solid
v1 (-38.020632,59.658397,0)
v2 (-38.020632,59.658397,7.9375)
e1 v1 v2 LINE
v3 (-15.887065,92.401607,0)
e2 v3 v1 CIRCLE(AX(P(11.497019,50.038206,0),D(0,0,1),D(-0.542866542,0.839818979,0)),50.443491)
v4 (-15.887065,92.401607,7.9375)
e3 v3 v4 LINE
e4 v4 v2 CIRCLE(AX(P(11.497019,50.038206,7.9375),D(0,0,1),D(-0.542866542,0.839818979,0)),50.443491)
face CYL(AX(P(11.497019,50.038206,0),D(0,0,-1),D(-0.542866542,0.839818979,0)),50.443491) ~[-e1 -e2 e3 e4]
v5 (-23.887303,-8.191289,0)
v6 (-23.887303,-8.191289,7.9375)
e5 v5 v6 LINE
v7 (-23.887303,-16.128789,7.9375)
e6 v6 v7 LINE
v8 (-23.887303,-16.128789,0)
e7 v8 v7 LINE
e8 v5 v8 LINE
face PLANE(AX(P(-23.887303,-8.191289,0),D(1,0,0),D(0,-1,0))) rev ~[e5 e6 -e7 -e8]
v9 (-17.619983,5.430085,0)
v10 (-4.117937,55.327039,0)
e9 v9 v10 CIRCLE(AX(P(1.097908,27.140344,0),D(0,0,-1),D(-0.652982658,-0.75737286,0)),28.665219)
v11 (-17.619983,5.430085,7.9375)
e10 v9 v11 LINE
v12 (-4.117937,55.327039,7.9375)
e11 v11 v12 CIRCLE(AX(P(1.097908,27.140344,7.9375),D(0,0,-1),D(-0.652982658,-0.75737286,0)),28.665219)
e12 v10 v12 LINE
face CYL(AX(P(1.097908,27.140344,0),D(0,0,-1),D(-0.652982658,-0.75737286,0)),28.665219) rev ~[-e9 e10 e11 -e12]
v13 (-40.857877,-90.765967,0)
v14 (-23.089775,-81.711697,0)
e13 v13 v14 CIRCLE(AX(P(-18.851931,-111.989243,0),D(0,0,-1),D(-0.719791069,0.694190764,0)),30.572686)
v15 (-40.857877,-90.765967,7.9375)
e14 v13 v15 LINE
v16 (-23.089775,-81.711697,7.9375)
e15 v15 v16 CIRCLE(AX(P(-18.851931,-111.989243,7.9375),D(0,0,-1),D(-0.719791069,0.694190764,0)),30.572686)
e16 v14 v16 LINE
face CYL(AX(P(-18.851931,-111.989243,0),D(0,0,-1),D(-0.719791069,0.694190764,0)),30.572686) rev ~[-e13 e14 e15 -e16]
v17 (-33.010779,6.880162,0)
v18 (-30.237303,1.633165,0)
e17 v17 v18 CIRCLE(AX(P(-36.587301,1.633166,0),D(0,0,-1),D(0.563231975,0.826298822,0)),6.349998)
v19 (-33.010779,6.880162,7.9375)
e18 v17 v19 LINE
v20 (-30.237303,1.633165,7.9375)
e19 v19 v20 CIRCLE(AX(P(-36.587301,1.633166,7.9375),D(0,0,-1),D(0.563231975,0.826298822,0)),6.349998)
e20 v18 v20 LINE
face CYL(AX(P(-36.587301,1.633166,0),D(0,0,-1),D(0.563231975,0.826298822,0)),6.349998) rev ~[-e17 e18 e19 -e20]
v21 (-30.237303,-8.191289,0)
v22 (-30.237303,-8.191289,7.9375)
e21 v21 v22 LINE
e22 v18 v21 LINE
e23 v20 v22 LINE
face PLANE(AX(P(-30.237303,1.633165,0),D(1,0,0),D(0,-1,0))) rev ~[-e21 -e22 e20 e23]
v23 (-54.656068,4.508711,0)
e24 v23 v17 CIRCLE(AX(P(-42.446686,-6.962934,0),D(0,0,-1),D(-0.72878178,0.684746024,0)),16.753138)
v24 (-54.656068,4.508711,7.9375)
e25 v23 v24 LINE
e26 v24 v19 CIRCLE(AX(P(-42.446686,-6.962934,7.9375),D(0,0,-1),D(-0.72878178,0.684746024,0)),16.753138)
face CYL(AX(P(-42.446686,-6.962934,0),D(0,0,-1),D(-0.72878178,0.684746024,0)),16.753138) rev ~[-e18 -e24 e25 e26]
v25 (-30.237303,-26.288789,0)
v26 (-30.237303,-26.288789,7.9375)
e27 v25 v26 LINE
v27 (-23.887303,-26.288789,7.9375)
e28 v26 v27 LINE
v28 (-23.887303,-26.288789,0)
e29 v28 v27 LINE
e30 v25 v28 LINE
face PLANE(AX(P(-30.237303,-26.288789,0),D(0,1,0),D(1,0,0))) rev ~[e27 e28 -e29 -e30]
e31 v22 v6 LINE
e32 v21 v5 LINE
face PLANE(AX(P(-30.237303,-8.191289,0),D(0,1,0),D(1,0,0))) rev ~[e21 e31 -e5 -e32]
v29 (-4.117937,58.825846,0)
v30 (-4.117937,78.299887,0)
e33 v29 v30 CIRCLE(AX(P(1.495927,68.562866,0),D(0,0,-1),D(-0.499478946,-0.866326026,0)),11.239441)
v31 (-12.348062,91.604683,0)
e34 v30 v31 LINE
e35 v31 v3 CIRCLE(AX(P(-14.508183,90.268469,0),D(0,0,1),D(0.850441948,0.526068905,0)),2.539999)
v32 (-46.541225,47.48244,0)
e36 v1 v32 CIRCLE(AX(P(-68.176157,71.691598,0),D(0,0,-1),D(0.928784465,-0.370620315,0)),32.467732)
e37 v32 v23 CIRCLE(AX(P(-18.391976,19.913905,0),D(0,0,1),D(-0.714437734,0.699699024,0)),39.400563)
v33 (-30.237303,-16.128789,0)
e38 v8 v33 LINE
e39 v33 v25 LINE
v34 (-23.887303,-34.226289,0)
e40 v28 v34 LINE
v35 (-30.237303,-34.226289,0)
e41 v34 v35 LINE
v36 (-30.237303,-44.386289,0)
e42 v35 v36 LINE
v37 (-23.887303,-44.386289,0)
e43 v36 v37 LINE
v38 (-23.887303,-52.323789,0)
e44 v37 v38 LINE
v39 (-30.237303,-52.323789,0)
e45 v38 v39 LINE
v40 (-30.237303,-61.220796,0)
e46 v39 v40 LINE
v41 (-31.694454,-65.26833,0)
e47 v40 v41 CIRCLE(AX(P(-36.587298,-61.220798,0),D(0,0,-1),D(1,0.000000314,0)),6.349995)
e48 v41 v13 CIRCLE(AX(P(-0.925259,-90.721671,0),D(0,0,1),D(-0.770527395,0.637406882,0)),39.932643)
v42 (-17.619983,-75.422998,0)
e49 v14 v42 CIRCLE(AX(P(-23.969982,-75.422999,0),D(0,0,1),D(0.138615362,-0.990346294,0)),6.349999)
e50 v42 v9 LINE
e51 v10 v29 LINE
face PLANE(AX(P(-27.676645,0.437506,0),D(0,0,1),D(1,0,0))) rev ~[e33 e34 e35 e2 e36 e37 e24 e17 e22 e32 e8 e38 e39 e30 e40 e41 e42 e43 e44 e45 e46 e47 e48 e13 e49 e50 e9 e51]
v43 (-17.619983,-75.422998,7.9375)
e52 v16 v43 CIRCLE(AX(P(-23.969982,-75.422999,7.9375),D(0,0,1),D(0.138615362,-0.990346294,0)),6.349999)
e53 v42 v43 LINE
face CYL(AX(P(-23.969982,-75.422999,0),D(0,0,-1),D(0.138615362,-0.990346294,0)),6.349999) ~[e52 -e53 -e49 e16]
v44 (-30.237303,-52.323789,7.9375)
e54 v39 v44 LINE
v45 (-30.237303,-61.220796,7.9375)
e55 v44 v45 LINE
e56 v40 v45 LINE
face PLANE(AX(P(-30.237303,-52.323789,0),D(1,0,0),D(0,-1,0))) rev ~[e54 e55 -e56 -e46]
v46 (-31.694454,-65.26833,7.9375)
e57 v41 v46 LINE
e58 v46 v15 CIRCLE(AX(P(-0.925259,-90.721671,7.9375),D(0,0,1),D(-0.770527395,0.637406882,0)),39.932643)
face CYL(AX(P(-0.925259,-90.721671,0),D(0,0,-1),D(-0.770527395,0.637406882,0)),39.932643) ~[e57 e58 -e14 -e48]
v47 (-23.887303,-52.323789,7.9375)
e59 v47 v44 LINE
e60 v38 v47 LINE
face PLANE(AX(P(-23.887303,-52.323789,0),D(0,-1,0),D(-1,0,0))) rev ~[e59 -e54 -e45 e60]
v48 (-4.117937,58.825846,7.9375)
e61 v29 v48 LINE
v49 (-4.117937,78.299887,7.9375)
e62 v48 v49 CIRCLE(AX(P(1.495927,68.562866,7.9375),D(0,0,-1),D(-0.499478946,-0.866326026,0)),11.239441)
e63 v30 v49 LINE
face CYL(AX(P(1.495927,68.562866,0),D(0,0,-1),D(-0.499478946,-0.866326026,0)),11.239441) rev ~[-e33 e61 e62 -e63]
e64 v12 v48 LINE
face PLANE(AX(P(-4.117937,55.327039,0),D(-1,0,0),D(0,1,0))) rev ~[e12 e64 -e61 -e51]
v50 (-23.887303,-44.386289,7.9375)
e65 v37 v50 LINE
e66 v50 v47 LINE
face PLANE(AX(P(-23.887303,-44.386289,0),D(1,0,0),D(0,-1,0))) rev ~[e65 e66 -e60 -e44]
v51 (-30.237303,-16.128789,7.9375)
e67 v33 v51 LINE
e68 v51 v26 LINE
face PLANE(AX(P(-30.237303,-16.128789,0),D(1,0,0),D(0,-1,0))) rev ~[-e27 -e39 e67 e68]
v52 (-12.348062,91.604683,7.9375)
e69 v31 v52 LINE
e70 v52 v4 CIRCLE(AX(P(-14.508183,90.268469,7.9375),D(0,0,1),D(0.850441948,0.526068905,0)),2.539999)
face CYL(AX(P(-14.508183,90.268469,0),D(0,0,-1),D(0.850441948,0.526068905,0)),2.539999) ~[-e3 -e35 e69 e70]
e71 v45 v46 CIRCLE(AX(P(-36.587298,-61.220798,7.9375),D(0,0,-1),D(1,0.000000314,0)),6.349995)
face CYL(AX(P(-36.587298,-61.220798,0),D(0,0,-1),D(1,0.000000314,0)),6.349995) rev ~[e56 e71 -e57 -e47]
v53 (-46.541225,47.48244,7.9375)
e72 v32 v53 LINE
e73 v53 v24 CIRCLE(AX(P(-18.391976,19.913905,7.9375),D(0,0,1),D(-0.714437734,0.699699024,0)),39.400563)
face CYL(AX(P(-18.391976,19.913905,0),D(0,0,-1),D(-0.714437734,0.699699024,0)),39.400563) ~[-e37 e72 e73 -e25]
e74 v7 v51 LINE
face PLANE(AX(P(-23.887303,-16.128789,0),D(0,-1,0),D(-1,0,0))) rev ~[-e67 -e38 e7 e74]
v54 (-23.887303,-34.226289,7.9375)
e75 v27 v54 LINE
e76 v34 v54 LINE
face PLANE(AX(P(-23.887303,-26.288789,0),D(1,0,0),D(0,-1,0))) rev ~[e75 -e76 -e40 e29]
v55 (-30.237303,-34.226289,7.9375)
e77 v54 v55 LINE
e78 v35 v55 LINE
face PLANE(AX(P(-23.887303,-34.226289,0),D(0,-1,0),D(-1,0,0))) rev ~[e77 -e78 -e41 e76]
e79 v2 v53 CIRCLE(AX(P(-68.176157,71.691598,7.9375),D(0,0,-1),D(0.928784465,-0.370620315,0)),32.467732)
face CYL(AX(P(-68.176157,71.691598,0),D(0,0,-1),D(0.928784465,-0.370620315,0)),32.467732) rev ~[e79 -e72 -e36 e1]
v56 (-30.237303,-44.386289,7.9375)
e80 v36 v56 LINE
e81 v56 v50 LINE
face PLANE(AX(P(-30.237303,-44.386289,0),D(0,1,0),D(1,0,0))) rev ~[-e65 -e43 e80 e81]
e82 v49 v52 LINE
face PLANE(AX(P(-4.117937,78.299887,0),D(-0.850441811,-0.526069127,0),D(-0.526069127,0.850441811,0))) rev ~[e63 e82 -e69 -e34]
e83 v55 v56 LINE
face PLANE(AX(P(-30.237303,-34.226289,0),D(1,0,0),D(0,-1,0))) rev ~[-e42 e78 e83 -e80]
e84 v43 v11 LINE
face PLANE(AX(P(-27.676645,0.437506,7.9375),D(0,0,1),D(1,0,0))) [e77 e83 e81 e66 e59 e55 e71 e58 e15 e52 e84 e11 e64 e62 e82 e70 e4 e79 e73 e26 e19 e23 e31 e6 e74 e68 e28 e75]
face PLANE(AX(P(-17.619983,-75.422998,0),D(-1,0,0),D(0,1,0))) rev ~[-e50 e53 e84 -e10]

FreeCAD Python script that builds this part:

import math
import FreeCAD as App
import Part
import Sketcher

V = App.Vector
Q = App.Units.Quantity

doc = App.newDocument("Part")
body = doc.addObject("PartDesign::Body", "Body")

# Sketch on XY plane
sketch1 = doc.addObject("Sketcher::SketchObject", "Sketch")
body.addObject(sketch1)
sketch1.AttachmentSupport = (doc.XY_Plane, [""])
sketch1.MapMode = "FlatFace"
sketch1.addGeometry([
    Part.ArcOfCircle(Part.Circle(V(1.097908, 27.140344, 0), V(0, 0, 1), 28.665219), math.radians(100.483786), math.radians(229.233139)),  # 0
    Part.LineSegment(V(-4.117937, 55.327039, 0), V(-4.117937, 58.825846, 0)),  # 1
    Part.ArcOfCircle(Part.Circle(V(1.495927, 68.562866, 0), V(0, 0, 1), 11.239441), math.radians(119.965533), math.radians(240.034467)),  # 2
    Part.LineSegment(V(-4.117937, 78.299887, 0), V(-12.348062, 91.604683, 0)),  # 3
    Part.ArcOfCircle(Part.Circle(V(-14.508183, 90.268469, 0), V(0, 0, 1), 2.539999), math.radians(31.740229), math.radians(122.879023)),  # 4
    Part.ArcOfCircle(Part.Circle(V(11.497019, 50.038206, 0), V(0, 0, 1), 50.443491), math.radians(122.878991), math.radians(169.005647)),  # 5
    Part.ArcOfCircle(Part.Circle(V(-68.176157, 71.691598, 0), V(0, 0, 1), 32.467732), math.radians(-48.213883), math.radians(-21.753879)),  # 6
    Part.ArcOfCircle(Part.Circle(V(-18.391976, 19.913905, 0), V(0, 0, 1), 39.400563), math.radians(135.597138), math.radians(203.016063)),  # 7
    Part.ArcOfCircle(Part.Circle(V(-42.446686, -6.962934, 0), V(0, 0, 1), 16.753138), math.radians(55.720378), math.radians(136.784363)),  # 8
    Part.ArcOfCircle(Part.Circle(V(-36.587301, 1.633166, 0), V(0, 0, 1), 6.349998), math.radians(-0.000012), math.radians(55.720394)),  # 9
    Part.LineSegment(V(-30.237303, 1.633165, 0), V(-30.237303, -8.191289, 0)),  # 10
    Part.LineSegment(V(-30.237303, -8.191289, 0), V(-23.887303, -8.191289, 0)),  # 11
    Part.LineSegment(V(-23.887303, -8.191289, 0), V(-23.887303, -16.128789, 0)),  # 12
    Part.LineSegment(V(-23.887303, -16.128789, 0), V(-30.237303, -16.128789, 0)),  # 13
    Part.LineSegment(V(-30.237303, -16.128789, 0), V(-30.237303, -26.288789, 0)),  # 14
    Part.LineSegment(V(-30.237303, -26.288789, 0), V(-23.887303, -26.288789, 0)),  # 15
    Part.LineSegment(V(-23.887303, -26.288789, 0), V(-23.887303, -34.226289, 0)),  # 16
    Part.LineSegment(V(-23.887303, -34.226289, 0), V(-30.237303, -34.226289, 0)),  # 17
    Part.LineSegment(V(-30.237303, -34.226289, 0), V(-30.237303, -44.386289, 0)),  # 18
    Part.LineSegment(V(-30.237303, -44.386289, 0), V(-23.887303, -44.386289, 0)),  # 19
    Part.LineSegment(V(-23.887303, -44.386289, 0), V(-23.887303, -52.323789, 0)),  # 20
    Part.LineSegment(V(-23.887303, -52.323789, 0), V(-30.237303, -52.323789, 0)),  # 21
    Part.LineSegment(V(-30.237303, -52.323789, 0), V(-30.237303, -61.220796, 0)),  # 22
    Part.ArcOfCircle(Part.Circle(V(-36.587298, -61.220798, 0), V(0, 0, 1), 6.349995), math.radians(-39.598742), math.radians(0.000018)),  # 23
    Part.ArcOfCircle(Part.Circle(V(-0.925259, -90.721671, 0), V(0, 0, 1), 39.932643), math.radians(140.401272), math.radians(180.063556)),  # 24
    Part.ArcOfCircle(Part.Circle(V(-18.851931, -111.989243, 0), V(0, 0, 1), 30.572686), math.radians(97.967732), math.radians(136.037233)),  # 25
    Part.ArcOfCircle(Part.Circle(V(-23.969982, -75.422999, 0), V(0, 0, 1), 6.349999), math.radians(-82.032269), math.radians(0.000005)),  # 26
    Part.LineSegment(V(-17.619983, -75.422998, 0), V(-17.619983, 5.430085, 0)),  # 27
], False)
sketch1.addConstraint([
    Sketcher.Constraint("Coincident", 0, 1, 1, 1),
    Sketcher.Constraint("Coincident", 1, 2, 2, 2),
    Sketcher.Constraint("Coincident", 2, 1, 3, 1),
    Sketcher.Constraint("Coincident", 3, 2, 4, 1),
    Sketcher.Constraint("Coincident", 4, 2, 5, 1),
    Sketcher.Constraint("Coincident", 5, 2, 6, 2),
    Sketcher.Constraint("Coincident", 6, 1, 7, 1),
    Sketcher.Constraint("Coincident", 7, 2, 8, 2),
    Sketcher.Constraint("Coincident", 8, 1, 9, 2),
    Sketcher.Constraint("Coincident", 9, 1, 10, 1),
    Sketcher.Constraint("Coincident", 10, 2, 11, 1),
    Sketcher.Constraint("Coincident", 11, 2, 12, 1),
    Sketcher.Constraint("Coincident", 12, 2, 13, 1),
    Sketcher.Constraint("Coincident", 13, 2, 14, 1),
    Sketcher.Constraint("Coincident", 14, 2, 15, 1),
    Sketcher.Constraint("Coincident", 15, 2, 16, 1),
    Sketcher.Constraint("Coincident", 16, 2, 17, 1),
    Sketcher.Constraint("Coincident", 17, 2, 18, 1),
    Sketcher.Constraint("Coincident", 18, 2, 19, 1),
    Sketcher.Constraint("Coincident", 19, 2, 20, 1),
    Sketcher.Constraint("Coincident", 20, 2, 21, 1),
    Sketcher.Constraint("Coincident", 21, 2, 22, 1),
    Sketcher.Constraint("Coincident", 22, 2, 23, 2),
    Sketcher.Constraint("Coincident", 23, 1, 24, 1),
    Sketcher.Constraint("Coincident", 24, 2, 25, 2),
    Sketcher.Constraint("Coincident", 25, 1, 26, 1),
    Sketcher.Constraint("Coincident", 26, 2, 27, 1),
    Sketcher.Constraint("Coincident", 27, 2, 0, 2),
    Sketcher.Constraint("Vertical", 1),
    Sketcher.Constraint("Vertical", 10),
    Sketcher.Constraint("Horizontal", 11),
    Sketcher.Constraint("Vertical", 12),
    Sketcher.Constraint("Horizontal", 13),
    Sketcher.Constraint("Vertical", 14),
    Sketcher.Constraint("Horizontal", 15),
    Sketcher.Constraint("Vertical", 16),
    Sketcher.Constraint("Horizontal", 17),
    Sketcher.Constraint("Vertical", 18),
    Sketcher.Constraint("Horizontal", 19),
    Sketcher.Constraint("Vertical", 20),
    Sketcher.Constraint("Horizontal", 21),
    Sketcher.Constraint("Vertical", 22),
    Sketcher.Constraint("Vertical", 27),
    Sketcher.Constraint("Radius", 4, Q("0.0999999 in")),
    Sketcher.Constraint("Radius", 9, Q("0.2499999 in")),
    Sketcher.Constraint("Radius", 23, Q("0.2499998 in")),
    Sketcher.Constraint("Radius", 26, Q("0.25 in")),
    Sketcher.Constraint("DistanceY", 14, 2, 14, 1, Q("0.4 in")),
    Sketcher.Constraint("DistanceY", 18, 2, 18, 1, Q("0.4 in")),
    Sketcher.Constraint("DistanceX", 11, 1, 11, 2, Q("0.25 in")),
    Sketcher.Constraint("DistanceX", 13, 2, 13, 1, Q("0.25 in")),
    Sketcher.Constraint("DistanceX", 15, 1, 15, 2, Q("0.25 in")),
    Sketcher.Constraint("DistanceX", 17, 2, 17, 1, Q("0.25 in")),
    Sketcher.Constraint("DistanceX", 19, 1, 19, 2, Q("0.25 in")),
    Sketcher.Constraint("DistanceX", 21, 2, 21, 1, Q("0.25 in")),
    Sketcher.Constraint("DistanceY", 10, 2, 7, 2, Q("0.5 in")),
    Sketcher.Constraint("DistanceY", 12, 2, 12, 1, Q("0.3125 in")),
    Sketcher.Constraint("DistanceY", 16, 2, 16, 1, Q("0.3125 in")),
    Sketcher.Constraint("DistanceY", 20, 2, 20, 1, Q("0.3125 in")),
    Sketcher.Constraint("Radius", 0, Q("28.665219 mm")),
    Sketcher.Constraint("Radius", 2, Q("11.239441 mm")),
    Sketcher.Constraint("Radius", 5, Q("50.443491 mm")),
    Sketcher.Constraint("Radius", 6, Q("32.467732 mm")),
    Sketcher.Constraint("Radius", 8, Q("16.753138 mm")),
    Sketcher.Constraint("DistanceX", 26, 3, -1, 1, Q("0.9437001 in")),
    Sketcher.Constraint("Radius", 7, Q("39.400563 mm")),
    Sketcher.Constraint("Radius", 24, Q("39.932643 mm")),
    Sketcher.Constraint("Radius", 25, Q("30.572686 mm")),
    Sketcher.Constraint("DistanceY", -1, 1, 6, 3, Q("71.691598 mm")),
    Sketcher.Constraint("DistanceX", 9, 3, -1, 1, Q("36.587301 mm")),
    Sketcher.Constraint("DistanceY", 26, 3, -1, 1, Q("75.422999 mm")),
    Sketcher.Constraint("DistanceY", 26, 2, -1, 1, Q("75.422998 mm")),
    Sketcher.Constraint("DistanceY", 7, 3, 5, 3, Q("30.124301 mm")),
    Sketcher.Constraint("DistanceY", 8, 3, 2, 3, Q("75.5258 mm")),
    Sketcher.Constraint("DistanceY", 8, 3, 9, 3, Q("8.5961 mm")),
    Sketcher.Constraint("DistanceY", 26, 3, 23, 3, Q("14.202201 mm")),
    Sketcher.Constraint("DistanceY", 0, 3, 1, 2, Q("31.685502 mm")),
    Sketcher.Constraint("DistanceY", 5, 2, 6, 3, Q("12.033201 mm")),
    Sketcher.Constraint("DistanceY", 6, 1, 0, 1, Q("7.844599 mm")),
    Sketcher.Constraint("DistanceY", 8, 3, 9, 1, Q("8.596099 mm")),
    Sketcher.Constraint("DistanceY", 25, 1, 26, 3, Q("6.288698 mm")),
    Sketcher.Constraint("DistanceY", 25, 1, 22, 2, Q("20.490901 mm")),
    Sketcher.Constraint("Distance", 3, Q("15.644569 mm")),
    Sketcher.Constraint("DistanceY", 1, 1, 1, 2, Q("3.498807 mm")),
    Sketcher.Constraint("DistanceY", 10, 2, 10, 1, Q("9.824454 mm")),
    Sketcher.Constraint("DistanceY", 22, 2, 22, 1, Q("8.897007 mm")),
    Sketcher.Constraint("DistanceY", 27, 1, 27, 2, Q("80.853083 mm")),
    Sketcher.Constraint("DistanceX", -1, 1, 0, 3, Q("1.097908 mm")),
    Sketcher.Constraint("DistanceY", -1, 1, 4, 3, Q("90.268469 mm")),
    Sketcher.Constraint("DistanceX", -1, 1, 5, 3, Q("11.497019 mm")),
    Sketcher.Constraint("DistanceX", 24, 3, -1, 1, Q("0.925259 mm")),
    Sketcher.Constraint("DistanceX", 25, 3, -1, 1, Q("18.851931 mm")),
    Sketcher.Constraint("DistanceX", 8, 1, -1, 1, Q("33.010779 mm")),
    Sketcher.Constraint("DistanceY", 23, 1, -1, 1, Q("65.26833 mm")),
    Sketcher.Constraint("DistanceY", 2, 3, 2, 1, Q("9.737021 mm")),
    Sketcher.Constraint("DistanceX", 4, 2, 4, 3, Q("1.378882 mm")),
])
pad1 = doc.addObject("PartDesign::Pad", "Pad")
body.addObject(pad1)
pad1.Profile = sketch1
pad1.Length = Q("0.3125 in")

doc.recompute()
